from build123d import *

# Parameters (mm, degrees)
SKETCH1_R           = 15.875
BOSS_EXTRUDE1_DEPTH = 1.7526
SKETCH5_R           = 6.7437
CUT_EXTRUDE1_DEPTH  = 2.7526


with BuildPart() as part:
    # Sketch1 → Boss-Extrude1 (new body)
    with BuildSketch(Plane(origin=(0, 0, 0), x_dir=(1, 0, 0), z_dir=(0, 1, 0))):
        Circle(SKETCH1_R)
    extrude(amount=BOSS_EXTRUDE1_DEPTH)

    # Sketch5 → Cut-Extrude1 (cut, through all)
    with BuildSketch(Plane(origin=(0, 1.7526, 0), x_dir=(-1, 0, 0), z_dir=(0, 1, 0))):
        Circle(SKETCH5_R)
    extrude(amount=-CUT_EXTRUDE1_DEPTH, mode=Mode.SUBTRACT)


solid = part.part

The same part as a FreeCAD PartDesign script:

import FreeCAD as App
import Part
import Sketcher
from FreeCAD import Vector
Q = App.Units.Quantity

doc = App.newDocument("Part")
body = doc.addObject("PartDesign::Body", "Body")

sketch1 = doc.addObject("Sketcher::SketchObject", "Sketch")
body.addObject(sketch1)
sketch1.AttachmentSupport = (doc.XZ_Plane, [""])
sketch1.MapMode = "FlatFace"
sketch1.addGeometry(Part.Circle(Vector(0, 0, 0), Vector(0, 0, 1), 16), False)
sketch1.addConstraint(Sketcher.Constraint("Coincident", 0, 3, -1, 1))
sketch1.addConstraint(Sketcher.Constraint("Diameter", 0, Q("1.25 in")))
pad1 = doc.addObject("PartDesign::Pad", "Pad")
body.addObject(pad1)
pad1.Profile = sketch1
pad1.Length = Q("0.069 in")
pad1.Reversed = True

sketch2 = doc.addObject("Sketcher::SketchObject", "Sketch001")
body.addObject(sketch2)
sketch2.AttachmentSupport = (doc.XZ_Plane, [""])
sketch2.MapMode = "FlatFace"
sketch2.AttachmentOffset = App.Placement(Vector(0, 0, -0.069 * 25.4), App.Rotation())
sketch2.addGeometry(Part.Circle(Vector(0, 0, 0), Vector(0, 0, 1), 7), False)
sketch2.addConstraint(Sketcher.Constraint("Coincident", 0, 3, -1, 1))
sketch2.addConstraint(Sketcher.Constraint("Diameter", 0, Q("0.531 in")))
pocket1 = doc.addObject("PartDesign::Pocket", "Pocket")
body.addObject(pocket1)
pocket1.Profile = sketch2
pocket1.Type = "ThroughAll"
pocket1.Reversed = True

doc.recompute()
